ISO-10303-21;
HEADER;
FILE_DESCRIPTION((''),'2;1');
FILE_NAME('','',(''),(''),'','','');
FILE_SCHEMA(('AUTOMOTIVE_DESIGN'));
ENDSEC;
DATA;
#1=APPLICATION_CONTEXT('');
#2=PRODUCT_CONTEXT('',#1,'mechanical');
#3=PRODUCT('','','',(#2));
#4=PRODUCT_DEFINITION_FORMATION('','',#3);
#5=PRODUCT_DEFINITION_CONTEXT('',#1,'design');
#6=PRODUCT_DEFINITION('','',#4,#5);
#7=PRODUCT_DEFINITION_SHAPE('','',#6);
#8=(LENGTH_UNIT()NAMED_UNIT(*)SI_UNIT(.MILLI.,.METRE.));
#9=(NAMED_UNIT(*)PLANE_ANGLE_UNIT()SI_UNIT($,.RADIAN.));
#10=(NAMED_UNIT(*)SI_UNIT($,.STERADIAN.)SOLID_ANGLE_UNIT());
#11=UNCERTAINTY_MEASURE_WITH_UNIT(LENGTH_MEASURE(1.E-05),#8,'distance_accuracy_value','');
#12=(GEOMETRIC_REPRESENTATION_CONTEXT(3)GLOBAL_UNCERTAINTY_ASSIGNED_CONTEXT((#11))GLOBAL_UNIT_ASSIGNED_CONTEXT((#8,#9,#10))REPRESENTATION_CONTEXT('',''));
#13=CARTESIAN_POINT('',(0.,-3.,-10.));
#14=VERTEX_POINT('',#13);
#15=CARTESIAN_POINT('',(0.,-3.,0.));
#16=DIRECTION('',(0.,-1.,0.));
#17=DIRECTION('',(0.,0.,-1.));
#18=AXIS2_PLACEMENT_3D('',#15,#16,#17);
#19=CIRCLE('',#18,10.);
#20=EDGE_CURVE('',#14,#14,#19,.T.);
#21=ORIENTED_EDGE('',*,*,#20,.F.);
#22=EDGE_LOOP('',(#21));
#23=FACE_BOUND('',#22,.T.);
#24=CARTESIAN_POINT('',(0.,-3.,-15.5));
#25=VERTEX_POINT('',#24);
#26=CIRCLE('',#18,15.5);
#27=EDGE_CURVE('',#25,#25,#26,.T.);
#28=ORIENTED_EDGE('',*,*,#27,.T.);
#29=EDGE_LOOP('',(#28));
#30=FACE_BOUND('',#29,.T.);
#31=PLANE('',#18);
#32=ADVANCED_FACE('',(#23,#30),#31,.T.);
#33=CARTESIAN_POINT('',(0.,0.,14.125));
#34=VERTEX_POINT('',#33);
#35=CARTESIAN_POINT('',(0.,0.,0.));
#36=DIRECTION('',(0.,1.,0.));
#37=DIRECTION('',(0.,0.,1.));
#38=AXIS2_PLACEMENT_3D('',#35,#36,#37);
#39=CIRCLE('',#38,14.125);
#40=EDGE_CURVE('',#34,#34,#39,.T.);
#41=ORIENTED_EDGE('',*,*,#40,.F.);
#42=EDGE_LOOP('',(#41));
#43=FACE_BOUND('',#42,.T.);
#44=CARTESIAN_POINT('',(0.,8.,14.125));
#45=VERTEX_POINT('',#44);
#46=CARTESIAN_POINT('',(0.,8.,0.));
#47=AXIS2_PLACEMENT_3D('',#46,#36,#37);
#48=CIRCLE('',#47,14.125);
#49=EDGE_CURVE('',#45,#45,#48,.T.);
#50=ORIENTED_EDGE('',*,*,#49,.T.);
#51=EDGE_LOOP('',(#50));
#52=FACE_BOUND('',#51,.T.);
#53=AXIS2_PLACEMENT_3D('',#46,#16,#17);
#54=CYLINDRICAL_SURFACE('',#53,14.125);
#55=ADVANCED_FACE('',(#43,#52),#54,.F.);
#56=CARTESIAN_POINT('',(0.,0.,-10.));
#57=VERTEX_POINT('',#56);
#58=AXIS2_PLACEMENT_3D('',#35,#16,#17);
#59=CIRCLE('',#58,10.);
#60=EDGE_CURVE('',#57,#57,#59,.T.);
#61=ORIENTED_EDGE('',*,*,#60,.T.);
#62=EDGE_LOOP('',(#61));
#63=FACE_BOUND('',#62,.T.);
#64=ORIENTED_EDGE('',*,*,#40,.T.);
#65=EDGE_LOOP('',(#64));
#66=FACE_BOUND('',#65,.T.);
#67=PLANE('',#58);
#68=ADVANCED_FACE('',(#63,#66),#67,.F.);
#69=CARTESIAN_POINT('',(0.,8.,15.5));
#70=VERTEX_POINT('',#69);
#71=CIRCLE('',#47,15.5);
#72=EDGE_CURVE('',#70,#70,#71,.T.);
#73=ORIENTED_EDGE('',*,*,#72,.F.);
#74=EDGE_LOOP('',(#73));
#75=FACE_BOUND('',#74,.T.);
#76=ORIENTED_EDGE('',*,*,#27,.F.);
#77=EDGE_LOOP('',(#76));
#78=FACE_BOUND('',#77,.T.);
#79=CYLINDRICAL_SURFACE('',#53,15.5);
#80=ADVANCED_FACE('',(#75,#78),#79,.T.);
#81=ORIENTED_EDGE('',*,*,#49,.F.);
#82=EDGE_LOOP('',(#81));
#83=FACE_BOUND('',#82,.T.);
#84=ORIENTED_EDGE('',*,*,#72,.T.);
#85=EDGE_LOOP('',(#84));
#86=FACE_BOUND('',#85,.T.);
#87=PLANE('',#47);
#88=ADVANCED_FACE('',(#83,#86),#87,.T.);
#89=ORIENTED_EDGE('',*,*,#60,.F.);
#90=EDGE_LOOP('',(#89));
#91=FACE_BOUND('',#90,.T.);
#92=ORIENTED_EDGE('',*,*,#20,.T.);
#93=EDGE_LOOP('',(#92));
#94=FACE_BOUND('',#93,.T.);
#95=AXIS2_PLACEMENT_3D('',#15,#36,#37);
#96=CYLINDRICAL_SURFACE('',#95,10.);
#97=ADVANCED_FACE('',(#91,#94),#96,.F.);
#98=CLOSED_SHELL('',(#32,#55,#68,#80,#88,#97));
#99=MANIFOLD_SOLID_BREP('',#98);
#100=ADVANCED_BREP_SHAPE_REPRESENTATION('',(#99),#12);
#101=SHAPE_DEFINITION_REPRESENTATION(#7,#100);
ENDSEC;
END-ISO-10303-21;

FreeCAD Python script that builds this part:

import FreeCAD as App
import Part
import Sketcher
from FreeCAD import Vector

doc = App.newDocument("Part")
body = doc.addObject("PartDesign::Body", "Body")

sketch1 = doc.addObject("Sketcher::SketchObject", "Sketch")
body.addObject(sketch1)
sketch1.AttachmentSupport = (doc.XZ_Plane, [""])
sketch1.MapMode = "FlatFace"
sketch1.addGeometry([
    Part.Circle(Vector(0, 0, 0), Vector(0, 0, 1), 15.5),
    Part.Circle(Vector(0, 0, 0), Vector(0, 0, 1), 14.125),
], False)
sketch1.addConstraint([
    Sketcher.Constraint("Coincident", 0, 3, -1, 1),
    Sketcher.Constraint("Coincident", 1, 3, -1, 1),
    Sketcher.Constraint("Diameter", 0, 31.0),
    Sketcher.Constraint("Diameter", 1, 28.25),
])
pad1 = doc.addObject("PartDesign::Pad", "Pad")
body.addObject(pad1)
pad1.Profile = sketch1
pad1.Length = 8
pad1.Reversed = True

sketch2 = doc.addObject("Sketcher::SketchObject", "Sketch001")
body.addObject(sketch2)
sketch2.AttachmentSupport = (doc.XZ_Plane, [""])
sketch2.MapMode = "FlatFace"
sketch2.addGeometry([
    Part.Circle(Vector(0, 0, 0), Vector(0, 0, 1), 15.5),
    Part.Circle(Vector(0, 0, 0), Vector(0, 0, 1), 10),
], False)
sketch2.addConstraint([
    Sketcher.Constraint("Coincident", 0, 3, -1, 1),
    Sketcher.Constraint("Coincident", 1, 3, -1, 1),
    Sketcher.Constraint("Diameter", 0, 31.0),
    Sketcher.Constraint("Diameter", 1, 20.0),
])
pad2 = doc.addObject("PartDesign::Pad", "Pad001")
body.addObject(pad2)
pad2.Profile = sketch2
pad2.Length = 3

doc.recompute()
